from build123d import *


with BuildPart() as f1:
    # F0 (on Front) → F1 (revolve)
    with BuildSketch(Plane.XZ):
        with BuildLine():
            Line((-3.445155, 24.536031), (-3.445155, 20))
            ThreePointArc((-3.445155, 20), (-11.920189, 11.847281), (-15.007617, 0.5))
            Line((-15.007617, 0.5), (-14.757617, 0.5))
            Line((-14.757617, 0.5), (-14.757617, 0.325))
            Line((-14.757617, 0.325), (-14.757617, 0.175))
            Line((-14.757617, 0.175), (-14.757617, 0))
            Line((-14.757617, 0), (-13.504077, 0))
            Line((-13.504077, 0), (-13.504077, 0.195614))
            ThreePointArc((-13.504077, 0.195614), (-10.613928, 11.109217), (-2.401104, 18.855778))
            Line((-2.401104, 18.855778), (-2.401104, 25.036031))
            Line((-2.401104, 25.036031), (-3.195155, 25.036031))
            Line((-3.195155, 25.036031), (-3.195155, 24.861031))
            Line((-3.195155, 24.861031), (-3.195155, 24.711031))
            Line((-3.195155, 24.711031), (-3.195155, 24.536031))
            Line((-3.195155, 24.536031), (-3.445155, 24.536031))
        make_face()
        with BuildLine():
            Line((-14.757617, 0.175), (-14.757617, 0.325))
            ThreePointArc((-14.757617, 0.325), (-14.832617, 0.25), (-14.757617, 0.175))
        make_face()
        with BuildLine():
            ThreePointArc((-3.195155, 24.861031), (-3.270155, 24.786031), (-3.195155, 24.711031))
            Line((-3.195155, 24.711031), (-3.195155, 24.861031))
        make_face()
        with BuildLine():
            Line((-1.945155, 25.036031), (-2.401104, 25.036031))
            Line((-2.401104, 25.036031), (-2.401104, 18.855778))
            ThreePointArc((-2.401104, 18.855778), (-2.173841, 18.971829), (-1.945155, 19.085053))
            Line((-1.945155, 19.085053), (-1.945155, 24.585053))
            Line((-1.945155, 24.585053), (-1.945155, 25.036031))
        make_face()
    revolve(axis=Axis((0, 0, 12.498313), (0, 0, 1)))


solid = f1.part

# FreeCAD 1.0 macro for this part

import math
import FreeCAD as App
import Part
import Sketcher
from FreeCAD import Vector
Q = App.Units.Quantity

doc = App.newDocument("Part")
body = doc.addObject("PartDesign::Body", "Body")

sketch1 = body.newObject("Sketcher::SketchObject", "Sketch")
sketch1.AttachmentSupport = (doc.getObject("XZ_Plane"), [""])
sketch1.MapMode = "FlatFace"
sketch1.addGeometry([
    Part.LineSegment(Vector(-3.45, 24.54, 0), Vector(-3.45, 20, 0)),
    Part.ArcOfCircle(Part.Circle(Vector(7.07, 0.59, 0), Vector(0, 0, 1), 22.08), math.radians(118), math.radians(180)),
    Part.LineSegment(Vector(-15.01, 0.5, 0), Vector(-14.76, 0.5, 0)),
    Part.LineSegment(Vector(-14.76, 0.5, 0), Vector(-14.76, 0.33, 0)),
    Part.ArcOfCircle(Part.Circle(Vector(-14.76, 0.25, 0), Vector(0, 0, 1), 0.07), math.radians(90), math.radians(270)),
    Part.LineSegment(Vector(-14.76, 0.17, 0), Vector(-14.76, 0, 0)),
    Part.LineSegment(Vector(-14.76, 0, 0), Vector(-13.5, 0, 0)),
    Part.LineSegment(Vector(-13.5, 0, 0), Vector(-13.5, 0.2, 0)),
    Part.ArcOfCircle(Part.Circle(Vector(7.07, 0.59, 0), Vector(0, 0, 1), 20.58), math.radians(117), math.radians(181)),
    Part.ArcOfCircle(Part.Circle(Vector(7.07, 0.59, 0), Vector(0, 0, 1), 20.57), math.radians(115.99), math.radians(117.41)),
    Part.LineSegment(Vector(-1.95, 19.09, 0), Vector(-1.95, 25.04, 0)),
    Part.LineSegment(Vector(-1.95, 25.04, 0), Vector(-3.2, 25.04, 0)),
    Part.LineSegment(Vector(-3.2, 25.04, 0), Vector(-3.2, 24.86, 0)),
    Part.ArcOfCircle(Part.Circle(Vector(-3.2, 24.79, 0), Vector(0, 0, 1), 0.07), math.radians(90), math.radians(270)),
    Part.LineSegment(Vector(-3.2, 24.71, 0), Vector(-3.2, 24.54, 0)),
    Part.LineSegment(Vector(-3.2, 24.54, 0), Vector(-3.45, 24.54, 0)),
], False)
sketch1.addConstraint([
    Sketcher.Constraint("Coincident", 0, 2, 1, 1),
    Sketcher.Constraint("Coincident", 1, 2, 2, 1),
    Sketcher.Constraint("Coincident", 2, 2, 3, 1),
    Sketcher.Constraint("Coincident", 3, 2, 4, 1),
    Sketcher.Constraint("Coincident", 4, 2, 5, 1),
    Sketcher.Constraint("Coincident", 5, 2, 6, 1),
    Sketcher.Constraint("Coincident", 6, 2, 7, 1),
    Sketcher.Constraint("Coincident", 7, 2, 8, 2),
    Sketcher.Constraint("Coincident", 8, 1, 9, 2),
    Sketcher.Constraint("Coincident", 9, 1, 10, 1),
    Sketcher.Constraint("Coincident", 10, 2, 11, 1),
    Sketcher.Constraint("Coincident", 11, 2, 12, 1),
    Sketcher.Constraint("Coincident", 12, 2, 13, 1),
    Sketcher.Constraint("Coincident", 13, 2, 14, 1),
    Sketcher.Constraint("Coincident", 14, 2, 15, 1),
    Sketcher.Constraint("Coincident", 15, 2, 0, 1),
    Sketcher.Constraint("Vertical", 0),
    Sketcher.Constraint("Horizontal", 2),
    Sketcher.Constraint("Vertical", 3),
    Sketcher.Constraint("Vertical", 5),
    Sketcher.Constraint("Horizontal", 6),
    Sketcher.Constraint("Vertical", 7),
    Sketcher.Constraint("Vertical", 10),
    Sketcher.Constraint("Horizontal", 11),
    Sketcher.Constraint("Vertical", 12),
    Sketcher.Constraint("Vertical", 14),
    Sketcher.Constraint("Horizontal", 15),
    Sketcher.Constraint("Coincident", 8, 3, 1, 3),
    Sketcher.Constraint("Equal", 4, 13),
    Sketcher.Constraint("PointOnObject", 5, 2, -1),
    Sketcher.Constraint("Vertical", 4, 3, 2, 2),
    Sketcher.Constraint("Vertical", 3, 2, 4, 2),
    Sketcher.Constraint("Vertical", 13, 3, 11, 2),
    Sketcher.Constraint("Vertical", 12, 2, 13, 2),
    Sketcher.Constraint("Equal", 2, 15),
    Sketcher.Constraint("Equal", 3, 5),
    Sketcher.Constraint("Equal", 5, 12),
    Sketcher.Constraint("Equal", 12, 14),
    Sketcher.Constraint("DistanceY", -1, 1, 0, 2, Q("20 mm")),
    Sketcher.Constraint("Radius", 4, Q("0.075 mm")),
    Sketcher.Constraint("DistanceX", 2, 1, 2, 2, Q("0.25 mm")),
    Sketcher.Constraint("DistanceX", 11, 2, 11, 1, Q("1.25 mm")),
    Sketcher.Constraint("DistanceY", -1, 1, 1, 2, Q("0.5 mm")),
    Sketcher.Constraint("Radius", 1, Q("22.079165 mm")),
    Sketcher.Constraint("Radius", 8, Q("20.579165 mm")),
    Sketcher.Constraint("Radius", 9, Q("20.574354 mm")),
    Sketcher.Constraint("DistanceX", 6, 1, 6, 2, Q("1.25354 mm")),
    Sketcher.Constraint("DistanceY", 0, 2, 0, 1, Q("4.536031 mm")),
    Sketcher.Constraint("DistanceY", 10, 1, 10, 2, Q("5.950978 mm")),
    Sketcher.Constraint("DistanceY", 7, 1, 7, 2, Q("0.195614 mm")),
    Sketcher.Constraint("DistanceX", -1, 1, 1, 3, Q("7.071379 mm")),
    Sketcher.Constraint("DistanceY", -1, 1, 8, 1, Q("18.855778 mm")),
])
revolution = body.newObject("PartDesign::Revolution", "Revolution")
revolution.Profile = sketch1
revolution.ReferenceAxis = (sketch1, ["V_Axis"])
revolution.Angle = 360

doc.recompute()
